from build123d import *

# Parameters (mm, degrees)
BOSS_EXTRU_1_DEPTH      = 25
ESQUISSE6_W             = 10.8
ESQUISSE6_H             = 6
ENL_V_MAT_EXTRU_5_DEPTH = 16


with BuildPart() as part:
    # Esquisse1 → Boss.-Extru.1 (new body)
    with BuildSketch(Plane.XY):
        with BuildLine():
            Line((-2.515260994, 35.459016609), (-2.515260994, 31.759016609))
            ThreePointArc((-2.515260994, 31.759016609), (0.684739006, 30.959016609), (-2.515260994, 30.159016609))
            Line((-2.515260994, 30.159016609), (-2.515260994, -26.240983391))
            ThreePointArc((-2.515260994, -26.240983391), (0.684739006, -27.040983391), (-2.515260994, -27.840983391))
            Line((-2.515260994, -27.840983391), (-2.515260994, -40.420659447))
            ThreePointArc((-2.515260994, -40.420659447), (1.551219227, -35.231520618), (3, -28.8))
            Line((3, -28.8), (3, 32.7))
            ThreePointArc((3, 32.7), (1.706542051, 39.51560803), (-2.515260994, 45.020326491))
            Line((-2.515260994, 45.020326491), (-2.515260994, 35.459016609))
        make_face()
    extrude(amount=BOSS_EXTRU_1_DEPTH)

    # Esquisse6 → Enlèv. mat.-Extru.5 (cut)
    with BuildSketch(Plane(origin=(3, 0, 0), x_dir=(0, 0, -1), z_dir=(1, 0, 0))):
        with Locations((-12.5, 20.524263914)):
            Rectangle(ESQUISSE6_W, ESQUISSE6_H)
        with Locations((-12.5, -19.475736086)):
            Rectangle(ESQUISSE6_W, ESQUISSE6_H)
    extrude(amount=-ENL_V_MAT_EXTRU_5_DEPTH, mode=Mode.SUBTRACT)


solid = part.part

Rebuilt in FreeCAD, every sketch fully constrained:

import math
import FreeCAD as App
import Part
import Sketcher
from FreeCAD import Vector
Q = App.Units.Quantity

doc = App.newDocument("Part")
params = doc.addObject("Spreadsheet::Sheet", "Params")
for row, (alias, value) in enumerate([
    ("sketch1_radius", "15 mm"),
    ("sketch1_radius2", "1.7 mm"),
    ("sketch1_height", "56.4 mm"),
    ("sketch1_height2", "61.5 mm"),
    ("pad1_length", "25 mm"),
    ("sketch2_width", "6 mm"),
    ("sketch2_height", "10.8 mm"),
    ("pocket1_length", "16 mm"),
], start=1):
    params.set(f"A{row}", alias)
    params.set(f"B{row}", "=" + value)
    params.setAlias(f"B{row}", alias)

body = doc.addObject("PartDesign::Body", "Body")

# Sketch on XY plane
sketch1 = body.newObject("Sketcher::SketchObject", "Sketch")
sketch1.AttachmentSupport = (doc.getObject("XY_Plane"), [""])
sketch1.MapMode = "FlatFace"
sketch1.addGeometry([
    Part.ArcOfCircle(Part.Circle(Vector(-1, 31, 0), Vector(0, 0, 1), 1.7), math.radians(-152), math.radians(152)),  # 0
    Part.LineSegment(Vector(-2.5, 30.2, 0), Vector(-2.5, -26.2, 0)),  # 1
    Part.ArcOfCircle(Part.Circle(Vector(-1, -27, 0), Vector(0, 0, 1), 1.7), math.radians(-152), math.radians(152)),  # 2
    Part.LineSegment(Vector(-2.5, -27.8, 0), Vector(-2.5, -40.4, 0)),  # 3
    Part.ArcOfCircle(Part.Circle(Vector(-12, -28.8, 0), Vector(0, 0, 1), 15), math.radians(-51), math.radians(0)),  # 4
    Part.LineSegment(Vector(3, -28.8, 0), Vector(3, 32.7, 0)),  # 5
    Part.ArcOfCircle(Part.Circle(Vector(-12, 33.4, 0), Vector(0, 0, 1), 15), math.radians(-3), math.radians(51)),  # 6
    Part.LineSegment(Vector(-2.5, 45, 0), Vector(-2.5, 31.8, 0)),  # 7
], False)
sketch1.addConstraint([
    Sketcher.Constraint("Coincident", 0, 1, 1, 1),
    Sketcher.Constraint("Coincident", 1, 2, 2, 2),
    Sketcher.Constraint("Coincident", 2, 1, 3, 1),
    Sketcher.Constraint("Coincident", 3, 2, 4, 1),
    Sketcher.Constraint("Tangent", 4, 2, 5, 1),
    Sketcher.Constraint("Coincident", 5, 2, 6, 1),
    Sketcher.Constraint("Coincident", 6, 2, 7, 1),
    Sketcher.Constraint("Coincident", 7, 2, 0, 2),
    Sketcher.Constraint("Vertical", 1),
    Sketcher.Constraint("Vertical", 3),
    Sketcher.Constraint("Vertical", 5),
    Sketcher.Constraint("Vertical", 7),
    Sketcher.Constraint("Equal", 0, 2),
    Sketcher.Constraint("Equal", 4, 6),
    Sketcher.Constraint("Vertical", 0, 3, 2, 3),
    Sketcher.Constraint("Vertical", 1, 2, 2, 1),
    Sketcher.Constraint("Vertical", 3, 2, 6, 2),
    Sketcher.Constraint("Radius", 4, Q("15 mm")),
    Sketcher.Constraint("Radius", 0, Q("1.7 mm")),
    Sketcher.Constraint("DistanceY", 1, 2, 1, 1, Q("56.4 mm")),
    Sketcher.Constraint("DistanceY", 5, 1, 5, 2, Q("61.5 mm")),
    Sketcher.Constraint("DistanceX", 4, 3, -1, 1, Q("12 mm")),
    Sketcher.Constraint("DistanceY", 2, 3, 0, 3, Q("58 mm")),
    Sketcher.Constraint("DistanceY", 4, 3, -1, 1, Q("28.8 mm")),
    Sketcher.Constraint("DistanceY", 7, 2, 7, 1, Q("13.26131 mm")),
    Sketcher.Constraint("DistanceY", 3, 2, 3, 1, Q("12.579676 mm")),
    Sketcher.Constraint("DistanceX", 0, 3, -1, 1, Q("1.015261 mm")),
])
sketch1.setExpression("Constraints[17]", "Params.sketch1_radius")
sketch1.setExpression("Constraints[18]", "Params.sketch1_radius2")
sketch1.setExpression("Constraints[19]", "Params.sketch1_height")
sketch1.setExpression("Constraints[20]", "Params.sketch1_height2")
pad1 = body.newObject("PartDesign::Pad", "Pad")
pad1.Profile = sketch1
pad1.setExpression("Length", "Params.pad1_length")

# Sketch on YZ plane
sketch2 = body.newObject("Sketcher::SketchObject", "Sketch001")
sketch2.AttachmentSupport = (doc.getObject("YZ_Plane"), [""])
sketch2.MapMode = "FlatFace"
sketch2.AttachmentOffset = App.Placement(Vector(0, 0, 3), App.Rotation())
sketch2.addGeometry([
    Part.LineSegment(Vector(24, 18, 0), Vector(18, 18, 0)),  # 0
    Part.LineSegment(Vector(18, 18, 0), Vector(18, 7, 0)),  # 1
    Part.LineSegment(Vector(18, 7, 0), Vector(24, 7, 0)),  # 2
    Part.LineSegment(Vector(24, 7, 0), Vector(24, 18, 0)),  # 3
    Part.LineSegment(Vector(-16, 18, 0), Vector(-22, 18, 0)),  # 4
    Part.LineSegment(Vector(-22, 18, 0), Vector(-22, 7, 0)),  # 5
    Part.LineSegment(Vector(-22, 7, 0), Vector(-16, 7, 0)),  # 6
    Part.LineSegment(Vector(-16, 7, 0), Vector(-16, 18, 0)),  # 7
], False)
sketch2.addConstraint([
    Sketcher.Constraint("Coincident", 0, 2, 1, 1),
    Sketcher.Constraint("Coincident", 1, 2, 2, 1),
    Sketcher.Constraint("Coincident", 2, 2, 3, 1),
    Sketcher.Constraint("Coincident", 3, 2, 0, 1),
    Sketcher.Constraint("Coincident", 4, 2, 5, 1),
    Sketcher.Constraint("Coincident", 5, 2, 6, 1),
    Sketcher.Constraint("Coincident", 6, 2, 7, 1),
    Sketcher.Constraint("Coincident", 7, 2, 4, 1),
    Sketcher.Constraint("Horizontal", 0),
    Sketcher.Constraint("Vertical", 1),
    Sketcher.Constraint("Horizontal", 2),
    Sketcher.Constraint("Vertical", 3),
    Sketcher.Constraint("Horizontal", 4),
    Sketcher.Constraint("Vertical", 5),
    Sketcher.Constraint("Horizontal", 6),
    Sketcher.Constraint("Vertical", 7),
    Sketcher.Constraint("Horizontal", 3, 2, 4, 2),
    Sketcher.Constraint("Horizontal", 2, 2, 5, 2),
    Sketcher.Constraint("Equal", 2, 4),
    Sketcher.Constraint("DistanceX", 0, 2, 0, 1, Q("6 mm")),
    Sketcher.Constraint("DistanceY", 1, 2, 1, 1, Q("10.8 mm")),
    Sketcher.Constraint("DistanceX", 4, 2, 0, 2, Q("40 mm")),
    Sketcher.Constraint("DistanceY", -1, 1, 0, 2, Q("17.9 mm")),
    Sketcher.Constraint("DistanceX", -1, 1, 0, 2, Q("17.524264 mm")),
])
sketch2.setExpression("Constraints[19]", "Params.sketch2_width")
sketch2.setExpression("Constraints[20]", "Params.sketch2_height")
pocket1 = body.newObject("PartDesign::Pocket", "Pocket")
pocket1.Profile = sketch2
pocket1.setExpression("Length", "Params.pocket1_length")

doc.recompute()
